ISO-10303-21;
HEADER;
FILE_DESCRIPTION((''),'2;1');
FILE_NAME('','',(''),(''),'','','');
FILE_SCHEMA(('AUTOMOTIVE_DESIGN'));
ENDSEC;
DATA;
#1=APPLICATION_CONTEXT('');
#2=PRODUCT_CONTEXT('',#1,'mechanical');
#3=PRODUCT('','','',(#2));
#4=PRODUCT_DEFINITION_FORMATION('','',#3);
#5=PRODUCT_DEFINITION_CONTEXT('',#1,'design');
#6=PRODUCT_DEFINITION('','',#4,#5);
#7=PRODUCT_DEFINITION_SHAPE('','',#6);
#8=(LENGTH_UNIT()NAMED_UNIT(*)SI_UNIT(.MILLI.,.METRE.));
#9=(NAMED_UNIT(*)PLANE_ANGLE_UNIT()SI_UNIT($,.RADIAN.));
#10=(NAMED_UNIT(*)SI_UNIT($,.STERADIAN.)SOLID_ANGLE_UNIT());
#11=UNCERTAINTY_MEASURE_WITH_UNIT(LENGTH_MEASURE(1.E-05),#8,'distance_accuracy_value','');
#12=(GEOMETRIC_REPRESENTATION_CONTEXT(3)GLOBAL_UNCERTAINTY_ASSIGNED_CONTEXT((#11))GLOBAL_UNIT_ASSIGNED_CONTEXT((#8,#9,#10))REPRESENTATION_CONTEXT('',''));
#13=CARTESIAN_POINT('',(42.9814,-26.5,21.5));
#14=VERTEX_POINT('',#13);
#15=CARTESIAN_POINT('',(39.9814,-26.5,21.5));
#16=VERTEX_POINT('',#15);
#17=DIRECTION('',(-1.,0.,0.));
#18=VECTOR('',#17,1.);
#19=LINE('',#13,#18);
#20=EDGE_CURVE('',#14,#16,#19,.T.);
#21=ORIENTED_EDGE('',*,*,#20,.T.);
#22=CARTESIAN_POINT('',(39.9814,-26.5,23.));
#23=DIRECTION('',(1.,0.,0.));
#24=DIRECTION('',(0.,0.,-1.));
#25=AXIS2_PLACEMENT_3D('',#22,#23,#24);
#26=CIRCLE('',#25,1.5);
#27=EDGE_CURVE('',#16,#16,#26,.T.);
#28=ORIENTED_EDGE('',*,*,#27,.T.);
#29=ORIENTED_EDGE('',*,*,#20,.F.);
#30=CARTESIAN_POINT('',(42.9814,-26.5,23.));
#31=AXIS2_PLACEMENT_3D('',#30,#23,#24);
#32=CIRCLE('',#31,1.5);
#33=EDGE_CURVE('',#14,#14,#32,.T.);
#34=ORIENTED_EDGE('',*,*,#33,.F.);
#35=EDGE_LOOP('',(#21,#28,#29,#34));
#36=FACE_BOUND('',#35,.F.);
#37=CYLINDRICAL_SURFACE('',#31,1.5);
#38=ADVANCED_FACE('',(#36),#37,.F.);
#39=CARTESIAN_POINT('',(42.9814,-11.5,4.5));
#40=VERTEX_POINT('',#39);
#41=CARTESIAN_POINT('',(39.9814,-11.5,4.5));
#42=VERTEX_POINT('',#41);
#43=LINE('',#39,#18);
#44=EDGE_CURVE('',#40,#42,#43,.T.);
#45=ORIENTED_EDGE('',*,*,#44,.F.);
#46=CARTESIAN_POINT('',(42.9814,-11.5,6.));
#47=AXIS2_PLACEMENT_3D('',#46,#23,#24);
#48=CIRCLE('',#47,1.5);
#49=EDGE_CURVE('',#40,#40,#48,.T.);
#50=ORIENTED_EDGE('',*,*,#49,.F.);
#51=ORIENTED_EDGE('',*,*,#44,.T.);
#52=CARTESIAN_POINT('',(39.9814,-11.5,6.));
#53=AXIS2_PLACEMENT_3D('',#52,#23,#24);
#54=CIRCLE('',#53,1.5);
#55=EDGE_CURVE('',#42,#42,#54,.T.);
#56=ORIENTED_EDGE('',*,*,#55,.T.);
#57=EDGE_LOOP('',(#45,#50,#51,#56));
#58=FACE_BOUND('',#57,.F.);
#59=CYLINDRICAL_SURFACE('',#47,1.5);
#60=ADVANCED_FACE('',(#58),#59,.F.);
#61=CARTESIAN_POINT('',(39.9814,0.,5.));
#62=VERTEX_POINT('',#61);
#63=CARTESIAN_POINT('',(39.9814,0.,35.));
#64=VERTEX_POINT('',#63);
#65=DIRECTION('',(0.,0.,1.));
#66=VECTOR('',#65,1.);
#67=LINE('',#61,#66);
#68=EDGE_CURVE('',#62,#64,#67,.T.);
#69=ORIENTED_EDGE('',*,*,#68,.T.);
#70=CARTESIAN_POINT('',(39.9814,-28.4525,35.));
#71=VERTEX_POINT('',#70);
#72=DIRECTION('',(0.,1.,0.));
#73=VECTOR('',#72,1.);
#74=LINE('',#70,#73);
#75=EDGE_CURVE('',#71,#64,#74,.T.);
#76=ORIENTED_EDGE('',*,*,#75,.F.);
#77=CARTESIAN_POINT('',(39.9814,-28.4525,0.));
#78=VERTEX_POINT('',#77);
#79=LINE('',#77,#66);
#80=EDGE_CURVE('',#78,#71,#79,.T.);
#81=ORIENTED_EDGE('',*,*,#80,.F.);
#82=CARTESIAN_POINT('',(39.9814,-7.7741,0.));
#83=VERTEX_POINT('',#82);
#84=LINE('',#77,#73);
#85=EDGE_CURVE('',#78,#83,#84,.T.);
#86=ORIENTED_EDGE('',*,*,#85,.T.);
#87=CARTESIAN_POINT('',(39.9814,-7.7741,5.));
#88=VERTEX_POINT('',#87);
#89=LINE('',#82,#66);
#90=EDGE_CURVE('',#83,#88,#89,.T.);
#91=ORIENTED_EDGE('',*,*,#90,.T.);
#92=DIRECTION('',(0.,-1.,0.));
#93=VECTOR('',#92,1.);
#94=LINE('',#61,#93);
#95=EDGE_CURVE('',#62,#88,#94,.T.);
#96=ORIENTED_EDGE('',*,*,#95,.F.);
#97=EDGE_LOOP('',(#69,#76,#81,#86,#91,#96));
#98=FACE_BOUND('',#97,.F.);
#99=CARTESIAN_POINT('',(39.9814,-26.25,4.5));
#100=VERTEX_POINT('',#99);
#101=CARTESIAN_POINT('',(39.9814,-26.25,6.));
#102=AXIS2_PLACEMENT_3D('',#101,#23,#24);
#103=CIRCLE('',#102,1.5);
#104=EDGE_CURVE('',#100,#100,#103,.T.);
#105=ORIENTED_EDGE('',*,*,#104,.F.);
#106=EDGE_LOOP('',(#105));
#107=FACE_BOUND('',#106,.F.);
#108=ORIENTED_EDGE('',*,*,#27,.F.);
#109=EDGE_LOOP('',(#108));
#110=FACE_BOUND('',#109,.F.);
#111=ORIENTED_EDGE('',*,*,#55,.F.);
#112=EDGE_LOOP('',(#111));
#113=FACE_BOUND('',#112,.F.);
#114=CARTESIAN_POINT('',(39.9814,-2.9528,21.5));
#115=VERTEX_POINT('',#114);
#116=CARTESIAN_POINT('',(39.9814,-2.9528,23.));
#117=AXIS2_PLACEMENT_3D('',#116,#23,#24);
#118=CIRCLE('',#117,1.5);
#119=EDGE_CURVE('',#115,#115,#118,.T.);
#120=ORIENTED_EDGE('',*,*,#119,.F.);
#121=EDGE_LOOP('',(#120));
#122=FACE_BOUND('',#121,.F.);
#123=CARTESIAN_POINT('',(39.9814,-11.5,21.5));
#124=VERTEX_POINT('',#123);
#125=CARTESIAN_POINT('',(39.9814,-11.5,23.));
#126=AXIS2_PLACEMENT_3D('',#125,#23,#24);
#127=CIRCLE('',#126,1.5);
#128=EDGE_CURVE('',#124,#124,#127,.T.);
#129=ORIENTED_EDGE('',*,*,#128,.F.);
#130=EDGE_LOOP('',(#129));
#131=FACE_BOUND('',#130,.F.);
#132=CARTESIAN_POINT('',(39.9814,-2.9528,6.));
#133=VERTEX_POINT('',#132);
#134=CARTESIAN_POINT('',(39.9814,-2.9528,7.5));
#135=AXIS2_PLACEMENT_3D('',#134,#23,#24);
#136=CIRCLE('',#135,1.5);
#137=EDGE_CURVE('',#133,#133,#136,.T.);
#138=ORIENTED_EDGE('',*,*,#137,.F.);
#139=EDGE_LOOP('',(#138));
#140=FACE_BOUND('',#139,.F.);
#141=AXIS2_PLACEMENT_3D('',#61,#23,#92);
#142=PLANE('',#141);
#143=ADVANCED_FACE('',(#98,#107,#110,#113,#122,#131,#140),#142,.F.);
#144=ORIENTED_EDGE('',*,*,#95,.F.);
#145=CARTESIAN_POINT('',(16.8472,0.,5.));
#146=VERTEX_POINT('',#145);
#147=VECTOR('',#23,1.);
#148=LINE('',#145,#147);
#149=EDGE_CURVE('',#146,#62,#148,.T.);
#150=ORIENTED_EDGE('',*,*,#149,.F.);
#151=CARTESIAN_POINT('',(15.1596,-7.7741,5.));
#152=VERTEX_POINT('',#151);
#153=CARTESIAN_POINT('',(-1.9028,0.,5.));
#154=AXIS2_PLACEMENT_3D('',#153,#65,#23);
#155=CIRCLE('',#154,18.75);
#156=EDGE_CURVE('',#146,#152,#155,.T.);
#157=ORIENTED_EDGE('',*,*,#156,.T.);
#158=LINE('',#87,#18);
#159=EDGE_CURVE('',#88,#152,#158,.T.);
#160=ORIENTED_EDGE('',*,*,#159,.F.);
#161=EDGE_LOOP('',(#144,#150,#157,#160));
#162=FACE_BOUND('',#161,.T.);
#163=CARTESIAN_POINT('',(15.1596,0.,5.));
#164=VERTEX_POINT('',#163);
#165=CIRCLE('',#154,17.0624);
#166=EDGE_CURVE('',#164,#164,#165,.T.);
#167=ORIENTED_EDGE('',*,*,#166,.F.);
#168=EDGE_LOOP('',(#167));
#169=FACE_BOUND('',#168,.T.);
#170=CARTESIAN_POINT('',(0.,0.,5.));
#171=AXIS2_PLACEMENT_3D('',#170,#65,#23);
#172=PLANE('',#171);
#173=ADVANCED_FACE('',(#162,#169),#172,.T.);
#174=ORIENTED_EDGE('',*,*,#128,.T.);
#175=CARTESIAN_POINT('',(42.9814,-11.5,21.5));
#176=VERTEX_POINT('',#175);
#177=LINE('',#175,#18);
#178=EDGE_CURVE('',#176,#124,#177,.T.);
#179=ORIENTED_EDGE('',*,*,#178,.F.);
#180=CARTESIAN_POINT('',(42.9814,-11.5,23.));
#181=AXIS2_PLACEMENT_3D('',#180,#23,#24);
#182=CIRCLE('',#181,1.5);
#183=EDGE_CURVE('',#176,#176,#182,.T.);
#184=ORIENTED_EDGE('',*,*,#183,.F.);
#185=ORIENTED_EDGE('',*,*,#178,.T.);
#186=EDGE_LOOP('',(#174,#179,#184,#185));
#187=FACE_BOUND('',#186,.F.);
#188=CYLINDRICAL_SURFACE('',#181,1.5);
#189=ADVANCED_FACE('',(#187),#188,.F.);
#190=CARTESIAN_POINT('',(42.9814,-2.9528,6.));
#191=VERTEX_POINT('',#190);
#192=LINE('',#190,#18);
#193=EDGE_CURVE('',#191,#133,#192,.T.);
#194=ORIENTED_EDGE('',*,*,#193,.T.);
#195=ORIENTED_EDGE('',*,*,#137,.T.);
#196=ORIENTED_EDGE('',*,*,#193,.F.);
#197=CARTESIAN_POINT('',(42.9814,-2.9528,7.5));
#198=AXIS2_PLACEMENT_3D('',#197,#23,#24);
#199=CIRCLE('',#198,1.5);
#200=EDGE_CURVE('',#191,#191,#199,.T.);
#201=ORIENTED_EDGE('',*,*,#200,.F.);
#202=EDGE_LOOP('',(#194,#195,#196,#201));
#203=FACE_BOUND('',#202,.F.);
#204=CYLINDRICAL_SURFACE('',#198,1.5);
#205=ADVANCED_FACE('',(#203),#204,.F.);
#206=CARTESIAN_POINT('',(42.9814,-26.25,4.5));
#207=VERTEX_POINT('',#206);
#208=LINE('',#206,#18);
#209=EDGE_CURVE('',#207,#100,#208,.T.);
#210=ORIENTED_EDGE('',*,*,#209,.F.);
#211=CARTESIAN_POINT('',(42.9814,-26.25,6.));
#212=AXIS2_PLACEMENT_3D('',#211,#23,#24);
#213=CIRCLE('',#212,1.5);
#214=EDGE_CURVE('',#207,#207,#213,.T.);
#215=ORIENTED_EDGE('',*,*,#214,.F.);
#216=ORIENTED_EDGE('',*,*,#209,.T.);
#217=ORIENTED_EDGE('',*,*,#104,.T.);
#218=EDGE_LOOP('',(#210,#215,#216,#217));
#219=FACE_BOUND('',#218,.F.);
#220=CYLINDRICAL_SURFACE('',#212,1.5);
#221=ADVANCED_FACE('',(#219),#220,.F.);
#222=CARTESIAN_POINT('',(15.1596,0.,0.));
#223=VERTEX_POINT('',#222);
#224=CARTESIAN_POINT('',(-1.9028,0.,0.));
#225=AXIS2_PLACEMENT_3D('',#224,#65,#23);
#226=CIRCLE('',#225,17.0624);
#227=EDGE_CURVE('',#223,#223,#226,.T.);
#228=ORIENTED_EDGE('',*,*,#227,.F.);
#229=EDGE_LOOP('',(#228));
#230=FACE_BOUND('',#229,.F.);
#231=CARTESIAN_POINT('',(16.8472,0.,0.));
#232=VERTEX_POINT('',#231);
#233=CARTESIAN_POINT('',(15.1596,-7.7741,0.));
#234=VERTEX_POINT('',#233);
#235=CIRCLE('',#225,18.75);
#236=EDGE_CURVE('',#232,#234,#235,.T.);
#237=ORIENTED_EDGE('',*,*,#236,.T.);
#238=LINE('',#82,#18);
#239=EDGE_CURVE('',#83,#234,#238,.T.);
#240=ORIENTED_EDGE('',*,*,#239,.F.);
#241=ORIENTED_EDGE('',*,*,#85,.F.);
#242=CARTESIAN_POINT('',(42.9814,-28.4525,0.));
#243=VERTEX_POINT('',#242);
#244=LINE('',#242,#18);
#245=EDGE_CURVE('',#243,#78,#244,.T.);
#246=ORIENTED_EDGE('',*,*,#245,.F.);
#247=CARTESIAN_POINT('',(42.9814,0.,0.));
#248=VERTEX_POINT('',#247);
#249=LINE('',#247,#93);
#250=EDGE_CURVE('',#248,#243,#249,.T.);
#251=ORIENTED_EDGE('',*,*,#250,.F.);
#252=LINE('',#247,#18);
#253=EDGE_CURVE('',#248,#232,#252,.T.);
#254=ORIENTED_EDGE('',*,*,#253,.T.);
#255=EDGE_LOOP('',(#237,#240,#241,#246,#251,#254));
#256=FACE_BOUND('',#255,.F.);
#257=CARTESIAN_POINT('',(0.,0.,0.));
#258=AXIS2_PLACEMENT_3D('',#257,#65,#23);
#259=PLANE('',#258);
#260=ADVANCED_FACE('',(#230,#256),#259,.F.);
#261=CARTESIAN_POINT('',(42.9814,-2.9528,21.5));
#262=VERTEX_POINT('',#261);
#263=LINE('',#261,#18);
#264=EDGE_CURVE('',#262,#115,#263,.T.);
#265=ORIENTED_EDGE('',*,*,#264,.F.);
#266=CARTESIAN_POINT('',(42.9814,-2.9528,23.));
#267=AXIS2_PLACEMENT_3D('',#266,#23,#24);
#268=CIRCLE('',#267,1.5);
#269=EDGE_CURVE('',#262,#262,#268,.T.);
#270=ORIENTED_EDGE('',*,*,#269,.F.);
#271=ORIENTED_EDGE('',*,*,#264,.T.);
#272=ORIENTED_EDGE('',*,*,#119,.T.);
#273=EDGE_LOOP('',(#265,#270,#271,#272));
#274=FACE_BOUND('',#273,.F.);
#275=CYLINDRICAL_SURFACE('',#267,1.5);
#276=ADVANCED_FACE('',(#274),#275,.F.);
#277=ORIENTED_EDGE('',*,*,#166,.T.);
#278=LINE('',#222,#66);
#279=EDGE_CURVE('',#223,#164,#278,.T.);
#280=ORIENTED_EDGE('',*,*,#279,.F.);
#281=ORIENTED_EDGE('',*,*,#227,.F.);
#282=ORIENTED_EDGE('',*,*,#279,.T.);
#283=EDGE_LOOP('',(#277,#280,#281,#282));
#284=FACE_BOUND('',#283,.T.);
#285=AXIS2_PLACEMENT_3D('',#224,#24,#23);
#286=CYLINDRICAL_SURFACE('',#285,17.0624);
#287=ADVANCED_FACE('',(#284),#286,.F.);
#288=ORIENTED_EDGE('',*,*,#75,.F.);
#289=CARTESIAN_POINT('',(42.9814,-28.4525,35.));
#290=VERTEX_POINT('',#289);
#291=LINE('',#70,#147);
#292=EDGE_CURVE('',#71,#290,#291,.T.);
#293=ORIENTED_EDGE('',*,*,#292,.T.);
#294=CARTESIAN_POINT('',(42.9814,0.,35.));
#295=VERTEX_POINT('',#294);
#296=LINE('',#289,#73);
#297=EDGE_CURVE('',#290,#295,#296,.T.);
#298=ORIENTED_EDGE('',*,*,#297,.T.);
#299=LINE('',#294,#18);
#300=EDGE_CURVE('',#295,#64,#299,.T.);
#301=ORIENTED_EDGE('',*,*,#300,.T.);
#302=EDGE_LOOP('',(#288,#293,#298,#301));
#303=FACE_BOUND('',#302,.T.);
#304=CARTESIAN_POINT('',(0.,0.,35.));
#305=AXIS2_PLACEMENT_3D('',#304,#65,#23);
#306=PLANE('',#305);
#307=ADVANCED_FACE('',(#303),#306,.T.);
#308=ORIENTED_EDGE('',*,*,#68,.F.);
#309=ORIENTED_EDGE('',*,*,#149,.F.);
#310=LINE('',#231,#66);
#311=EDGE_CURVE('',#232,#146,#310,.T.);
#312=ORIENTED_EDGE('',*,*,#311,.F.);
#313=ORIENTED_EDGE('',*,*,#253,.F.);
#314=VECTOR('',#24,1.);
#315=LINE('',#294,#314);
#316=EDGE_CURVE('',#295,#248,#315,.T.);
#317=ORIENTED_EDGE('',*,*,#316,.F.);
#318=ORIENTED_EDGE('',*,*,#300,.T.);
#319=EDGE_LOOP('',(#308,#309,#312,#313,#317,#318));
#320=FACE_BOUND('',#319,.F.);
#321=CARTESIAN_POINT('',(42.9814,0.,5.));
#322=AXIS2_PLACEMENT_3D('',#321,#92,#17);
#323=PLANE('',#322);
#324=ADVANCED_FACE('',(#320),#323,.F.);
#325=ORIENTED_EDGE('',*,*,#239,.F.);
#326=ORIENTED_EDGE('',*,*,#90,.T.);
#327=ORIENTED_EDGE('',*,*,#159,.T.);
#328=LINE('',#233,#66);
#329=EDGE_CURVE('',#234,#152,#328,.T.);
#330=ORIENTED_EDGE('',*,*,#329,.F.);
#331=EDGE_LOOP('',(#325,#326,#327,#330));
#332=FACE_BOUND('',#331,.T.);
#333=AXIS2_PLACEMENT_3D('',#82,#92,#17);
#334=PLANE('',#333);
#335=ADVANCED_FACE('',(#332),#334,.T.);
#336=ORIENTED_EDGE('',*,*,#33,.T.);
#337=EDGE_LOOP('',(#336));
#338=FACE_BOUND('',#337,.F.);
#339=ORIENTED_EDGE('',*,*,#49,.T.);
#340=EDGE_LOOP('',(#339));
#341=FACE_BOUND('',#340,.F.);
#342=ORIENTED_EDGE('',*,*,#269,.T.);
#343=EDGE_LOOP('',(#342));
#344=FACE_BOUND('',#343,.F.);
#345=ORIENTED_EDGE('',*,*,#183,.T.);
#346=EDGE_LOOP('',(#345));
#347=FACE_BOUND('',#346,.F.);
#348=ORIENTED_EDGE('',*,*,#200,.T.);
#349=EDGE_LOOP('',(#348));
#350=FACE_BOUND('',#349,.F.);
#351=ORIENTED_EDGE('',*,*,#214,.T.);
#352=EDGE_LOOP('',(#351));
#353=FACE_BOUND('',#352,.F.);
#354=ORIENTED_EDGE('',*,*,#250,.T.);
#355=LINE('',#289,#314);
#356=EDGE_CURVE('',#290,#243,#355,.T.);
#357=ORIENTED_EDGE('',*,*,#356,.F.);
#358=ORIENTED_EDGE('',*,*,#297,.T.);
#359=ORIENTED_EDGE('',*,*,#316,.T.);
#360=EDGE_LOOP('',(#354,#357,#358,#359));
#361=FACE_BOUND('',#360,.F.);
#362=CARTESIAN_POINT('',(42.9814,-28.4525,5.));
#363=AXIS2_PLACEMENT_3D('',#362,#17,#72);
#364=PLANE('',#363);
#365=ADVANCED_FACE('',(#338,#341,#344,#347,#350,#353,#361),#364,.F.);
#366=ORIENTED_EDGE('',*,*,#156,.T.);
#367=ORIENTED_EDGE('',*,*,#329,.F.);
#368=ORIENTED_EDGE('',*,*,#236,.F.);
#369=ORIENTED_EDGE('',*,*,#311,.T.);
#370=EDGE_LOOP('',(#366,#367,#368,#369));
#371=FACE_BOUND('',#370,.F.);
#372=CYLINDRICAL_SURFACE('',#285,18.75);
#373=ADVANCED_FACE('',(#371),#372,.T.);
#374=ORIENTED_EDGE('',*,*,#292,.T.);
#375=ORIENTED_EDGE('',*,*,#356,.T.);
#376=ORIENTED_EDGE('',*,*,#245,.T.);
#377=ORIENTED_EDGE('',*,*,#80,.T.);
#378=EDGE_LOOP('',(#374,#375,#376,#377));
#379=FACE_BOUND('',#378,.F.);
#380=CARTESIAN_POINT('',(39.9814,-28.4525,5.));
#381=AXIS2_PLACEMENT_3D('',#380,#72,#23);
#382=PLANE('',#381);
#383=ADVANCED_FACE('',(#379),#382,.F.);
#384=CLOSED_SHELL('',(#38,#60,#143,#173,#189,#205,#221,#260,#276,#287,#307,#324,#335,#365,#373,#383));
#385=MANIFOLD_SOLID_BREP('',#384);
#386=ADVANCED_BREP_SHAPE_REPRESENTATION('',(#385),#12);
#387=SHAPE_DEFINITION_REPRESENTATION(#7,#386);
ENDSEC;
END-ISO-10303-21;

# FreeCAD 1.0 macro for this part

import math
import FreeCAD as App
import Part
import Sketcher
from FreeCAD import Vector
Q = App.Units.Quantity


def add_polygon(sketch, points):
    """Adds a closed chain of lines whose ends are joined by coincident constraints."""
    first, n = sketch.GeometryCount, len(points)
    for a, b in zip(points, points[1:] + points[:1]):
        sketch.addGeometry(Part.LineSegment(App.Vector(*a, 0), App.Vector(*b, 0)), False)
    for i in range(n):
        sketch.addConstraint(Sketcher.Constraint("Coincident", first + i, 2, first + (i + 1) % n, 1))

doc = App.newDocument("Part")
params = doc.addObject("Spreadsheet::Sheet", "Params")
for row, (alias, value) in enumerate([
    ("sketch1_width", "3 mm"),
    ("sketch1_radius", "18.75 mm"),
    ("pad1_length", "5 mm"),
    ("sketch2_width", "3 mm"),
    ("pad2_length", "30 mm"),
    ("sketch3_diameter", "3 mm"),
    ("pocket1_length", "5 mm"),
], start=1):
    params.set(f"A{row}", alias)
    params.set(f"B{row}", "=" + value)
    params.setAlias(f"B{row}", alias)

body = doc.addObject("PartDesign::Body", "Body")

sketch1 = body.newObject("Sketcher::SketchObject", "Sketch")
sketch1.AttachmentSupport = (doc.getObject("XY_Plane"), [""])
sketch1.MapMode = "FlatFace"
sketch1.addGeometry(Part.ArcOfCircle(Part.Circle(Vector(-1.9, 0, 0), Vector(0, 0, 1), 18.8), math.radians(0), math.radians(336)), False)
sketch1.addGeometry(Part.LineSegment(Vector(15.2, -7.8, 0), Vector(40, -7.8, 0)), False)
sketch1.addGeometry(Part.LineSegment(Vector(40, -7.8, 0), Vector(40, -28.5, 0)), False)
sketch1.addGeometry(Part.LineSegment(Vector(40, -28.5, 0), Vector(43, -28.5, 0)), False)
sketch1.addGeometry(Part.LineSegment(Vector(43, -28.5, 0), Vector(43, 0, 0)), False)
sketch1.addGeometry(Part.LineSegment(Vector(43, 0, 0), Vector(16.8, 0, 0)), False)
sketch1.addGeometry(Part.Circle(Vector(-1.9, 0, 0), Vector(0, 0, 1), 17.1), False)
sketch1.addConstraint(Sketcher.Constraint("Coincident", 0, 2, 1, 1))
sketch1.addConstraint(Sketcher.Constraint("Coincident", 1, 2, 2, 1))
sketch1.addConstraint(Sketcher.Constraint("Coincident", 2, 2, 3, 1))
sketch1.addConstraint(Sketcher.Constraint("Coincident", 3, 2, 4, 1))
sketch1.addConstraint(Sketcher.Constraint("Coincident", 4, 2, 5, 1))
sketch1.addConstraint(Sketcher.Constraint("Coincident", 5, 2, 0, 1))
sketch1.addConstraint(Sketcher.Constraint("Horizontal", 1))
sketch1.addConstraint(Sketcher.Constraint("Vertical", 2))
sketch1.addConstraint(Sketcher.Constraint("Horizontal", 3))
sketch1.addConstraint(Sketcher.Constraint("Vertical", 4))
sketch1.addConstraint(Sketcher.Constraint("Horizontal", 5))
sketch1.addConstraint(Sketcher.Constraint("Coincident", 6, 3, 0, 3))
sketch1.addConstraint(Sketcher.Constraint("PointOnObject", 0, 3, -1))
sketch1.addConstraint(Sketcher.Constraint("PointOnObject", 4, 2, -1))
sketch1.addConstraint(Sketcher.Constraint("DistanceX", 3, 1, 3, 2, Q("3 mm")))
sketch1.addConstraint(Sketcher.Constraint("Radius", 0, Q("18.75 mm")))
sketch1.addConstraint(Sketcher.Constraint("Diameter", 6, Q("34.1248 mm")))
sketch1.addConstraint(Sketcher.Constraint("DistanceX", 1, 1, 1, 2, Q("24.8218 mm")))
sketch1.addConstraint(Sketcher.Constraint("DistanceX", 5, 2, 5, 1, Q("26.1342 mm")))
sketch1.addConstraint(Sketcher.Constraint("DistanceY", 2, 2, 2, 1, Q("20.6784 mm")))
sketch1.addConstraint(Sketcher.Constraint("DistanceX", 0, 3, -1, 1, Q("1.9028 mm")))
sketch1.setExpression("Constraints[14]", "Params.sketch1_width")
sketch1.setExpression("Constraints[15]", "Params.sketch1_radius")
pad1 = body.newObject("PartDesign::Pad", "Pad")
pad1.Profile = sketch1
pad1.setExpression("Length", "Params.pad1_length")

sketch2 = body.newObject("Sketcher::SketchObject", "Sketch001")
sketch2.AttachmentSupport = (doc.getObject("XY_Plane"), [""])
sketch2.MapMode = "FlatFace"
sketch2.AttachmentOffset = App.Placement(Vector(0, 0, 5), App.Rotation())
add_polygon(sketch2, [(43, 0), (40, 0), (40, -28.5), (43, -28.5)])
sketch2.addConstraint(Sketcher.Constraint("Horizontal", 0))
sketch2.addConstraint(Sketcher.Constraint("Vertical", 1))
sketch2.addConstraint(Sketcher.Constraint("Horizontal", 2))
sketch2.addConstraint(Sketcher.Constraint("Vertical", 3))
sketch2.addConstraint(Sketcher.Constraint("PointOnObject", 0, 2, -1))
sketch2.addConstraint(Sketcher.Constraint("DistanceX", 0, 2, 0, 1, Q("3 mm")))
sketch2.addConstraint(Sketcher.Constraint("DistanceY", 1, 2, 1, 1, Q("28.4525 mm")))
sketch2.addConstraint(Sketcher.Constraint("DistanceX", -1, 1, 0, 2, Q("39.9814 mm")))
sketch2.setExpression("Constraints[9]", "Params.sketch2_width")
pad2 = body.newObject("PartDesign::Pad", "Pad001")
pad2.Profile = sketch2
pad2.setExpression("Length", "Params.pad2_length")

sketch3 = body.newObject("Sketcher::SketchObject", "Sketch002")
sketch3.AttachmentSupport = (doc.getObject("YZ_Plane"), [""])
sketch3.MapMode = "FlatFace"
sketch3.AttachmentOffset = App.Placement(Vector(0, 0, 42.9814), App.Rotation())
sketch3.addGeometry(Part.Circle(Vector(-11.5, 6, 0), Vector(0, 0, 1), 1.5), False)
sketch3.addGeometry(Part.Circle(Vector(-11.5, 23, 0), Vector(0, 0, 1), 1.5), False)
sketch3.addGeometry(Part.Circle(Vector(-26.2, 6, 0), Vector(0, 0, 1), 1.5), False)
sketch3.addGeometry(Part.Circle(Vector(-26.5, 23, 0), Vector(0, 0, 1), 1.5), False)
sketch3.addGeometry(Part.Circle(Vector(-3, 23, 0), Vector(0, 0, 1), 1.5), False)
sketch3.addGeometry(Part.Circle(Vector(-3, 7.5, 0), Vector(0, 0, 1), 1.5), False)
sketch3.addConstraint(Sketcher.Constraint("Equal", 0, 1))
sketch3.addConstraint(Sketcher.Constraint("Equal", 1, 2))
sketch3.addConstraint(Sketcher.Constraint("Equal", 2, 3))
sketch3.addConstraint(Sketcher.Constraint("Equal", 3, 4))
sketch3.addConstraint(Sketcher.Constraint("Equal", 4, 5))
sketch3.addConstraint(Sketcher.Constraint("Horizontal", 0, 3, 2, 3))
sketch3.addConstraint(Sketcher.Constraint("Horizontal", 1, 3, 3, 3))
sketch3.addConstraint(Sketcher.Constraint("Horizontal", 3, 3, 4, 3))
sketch3.addConstraint(Sketcher.Constraint("Vertical", 0, 3, 1, 3))
sketch3.addConstraint(Sketcher.Constraint("Vertical", 4, 3, 5, 3))
sketch3.addConstraint(Sketcher.Constraint("Diameter", 0, Q("3 mm")))
sketch3.addConstraint(Sketcher.Constraint("DistanceY", -1, 1, 0, 3, Q("6 mm")))
sketch3.addConstraint(Sketcher.Constraint("DistanceY", -1, 1, 1, 3, Q("23 mm")))
sketch3.addConstraint(Sketcher.Constraint("DistanceX", 3, 3, 1, 3, Q("15 mm")))
sketch3.addConstraint(Sketcher.Constraint("DistanceX", 0, 3, -1, 1, Q("11.5 mm")))
sketch3.addConstraint(Sketcher.Constraint("DistanceY", -1, 1, 5, 3, Q("7.5 mm")))
sketch3.addConstraint(Sketcher.Constraint("DistanceX", 2, 3, -1, 1, Q("26.25 mm")))
sketch3.addConstraint(Sketcher.Constraint("DistanceX", 4, 3, -1, 1, Q("2.9528 mm")))
sketch3.setExpression("Constraints[10]", "Params.sketch3_diameter")
pocket1 = body.newObject("PartDesign::Pocket", "Pocket")
pocket1.Profile = sketch3
pocket1.setExpression("Length", "Params.pocket1_length")

doc.recompute()
